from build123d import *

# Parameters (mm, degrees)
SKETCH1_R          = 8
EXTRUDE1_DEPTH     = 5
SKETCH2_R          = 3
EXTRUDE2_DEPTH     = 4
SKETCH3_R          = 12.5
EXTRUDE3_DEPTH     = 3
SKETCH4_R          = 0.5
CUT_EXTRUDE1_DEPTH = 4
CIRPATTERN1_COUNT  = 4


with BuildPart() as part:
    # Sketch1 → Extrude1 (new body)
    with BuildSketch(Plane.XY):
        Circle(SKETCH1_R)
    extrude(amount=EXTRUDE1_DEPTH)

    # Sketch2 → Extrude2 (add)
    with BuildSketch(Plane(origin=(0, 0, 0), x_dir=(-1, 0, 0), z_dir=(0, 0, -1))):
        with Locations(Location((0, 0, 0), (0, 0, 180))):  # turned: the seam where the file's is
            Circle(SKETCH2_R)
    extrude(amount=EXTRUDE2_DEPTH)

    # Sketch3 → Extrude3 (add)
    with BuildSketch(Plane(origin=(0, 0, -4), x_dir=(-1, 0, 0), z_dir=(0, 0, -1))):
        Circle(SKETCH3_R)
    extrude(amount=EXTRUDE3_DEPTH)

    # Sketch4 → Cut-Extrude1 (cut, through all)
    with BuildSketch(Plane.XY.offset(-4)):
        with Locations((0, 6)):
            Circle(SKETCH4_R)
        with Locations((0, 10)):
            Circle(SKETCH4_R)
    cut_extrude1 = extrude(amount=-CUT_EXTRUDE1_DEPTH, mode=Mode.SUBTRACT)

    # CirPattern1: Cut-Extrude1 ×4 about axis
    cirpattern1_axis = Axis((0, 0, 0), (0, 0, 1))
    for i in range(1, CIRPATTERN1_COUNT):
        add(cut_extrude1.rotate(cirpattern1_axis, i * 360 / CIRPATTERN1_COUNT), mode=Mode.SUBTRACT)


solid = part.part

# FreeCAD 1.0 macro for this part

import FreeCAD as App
import Part
import Sketcher

V = App.Vector
Q = App.Units.Quantity

doc = App.newDocument("Part")
body = doc.addObject("PartDesign::Body", "Body")

# Sketch on XY plane
sketch1 = doc.addObject("Sketcher::SketchObject", "Sketch")
body.addObject(sketch1)
sketch1.AttachmentSupport = (doc.XY_Plane, [""])
sketch1.MapMode = "FlatFace"
sketch1.addGeometry(Part.Circle(V(0, 0, 0), V(0, 0, 1), 8), False)
sketch1.addConstraint([
    Sketcher.Constraint("Coincident", 0, 3, -1, 1),
    Sketcher.Constraint("Diameter", 0, Q("16 mm")),
])
pad1 = doc.addObject("PartDesign::Pad", "Pad")
body.addObject(pad1)
pad1.Profile = sketch1
pad1.Length = 5

# Sketch on XY plane
sketch2 = doc.addObject("Sketcher::SketchObject", "Sketch001")
body.addObject(sketch2)
sketch2.AttachmentSupport = (doc.XY_Plane, [""])
sketch2.MapMode = "FlatFace"
sketch2.addGeometry(Part.Circle(V(0, 0, 0), V(0, 0, 1), 3), False)
sketch2.addConstraint([
    Sketcher.Constraint("Coincident", 0, 3, -1, 1),
    Sketcher.Constraint("Diameter", 0, Q("6 mm")),
])
pad2 = doc.addObject("PartDesign::Pad", "Pad001")
body.addObject(pad2)
pad2.Profile = sketch2
pad2.Length = 4
pad2.Reversed = True

# Sketch on XY plane
sketch3 = doc.addObject("Sketcher::SketchObject", "Sketch002")
body.addObject(sketch3)
sketch3.AttachmentSupport = (doc.XY_Plane, [""])
sketch3.MapMode = "FlatFace"
sketch3.AttachmentOffset = App.Placement(V(0, 0, -4), App.Rotation())
sketch3.addGeometry(Part.Circle(V(0, 0, 0), V(0, 0, 1), 12), False)
sketch3.addConstraint([
    Sketcher.Constraint("Coincident", 0, 3, -1, 1),
    Sketcher.Constraint("Diameter", 0, Q("25 mm")),
])
pad3 = doc.addObject("PartDesign::Pad", "Pad002")
body.addObject(pad3)
pad3.Profile = sketch3
pad3.Length = 3
pad3.Reversed = True

# Sketch on XY plane
sketch4 = doc.addObject("Sketcher::SketchObject", "Sketch003")
body.addObject(sketch4)
sketch4.AttachmentSupport = (doc.XY_Plane, [""])
sketch4.MapMode = "FlatFace"
sketch4.AttachmentOffset = App.Placement(V(0, 0, -4), App.Rotation())
sketch4.addGeometry([
    Part.Circle(V(0, 6, 0), V(0, 0, 1), 0.5),
    Part.Circle(V(0, 10, 0), V(0, 0, 1), 0.5),
], False)
sketch4.addConstraint([
    Sketcher.Constraint("Equal", 0, 1),
    Sketcher.Constraint("PointOnObject", 0, 3, -2),
    Sketcher.Constraint("PointOnObject", 1, 3, -2),
    Sketcher.Constraint("Diameter", 0, Q("1 mm")),
    Sketcher.Constraint("DistanceY", -1, 1, 0, 3, Q("6 mm")),
    Sketcher.Constraint("DistanceY", -1, 1, 1, 3, Q("10 mm")),
])
pocket1 = doc.addObject("PartDesign::Pocket", "Pocket")
body.addObject(pocket1)
pocket1.Profile = sketch4
pocket1.Type = "ThroughAll"
doc.recompute()

polarpattern = doc.addObject("PartDesign::PolarPattern", "PolarPattern")
body.addObject(polarpattern)
polarpattern.Originals = [pocket1]
polarpattern.Axis = (doc.Z_Axis, [""])
polarpattern.Angle = 360
polarpattern.Occurrences = 4
body.Tip = polarpattern

doc.recompute()
